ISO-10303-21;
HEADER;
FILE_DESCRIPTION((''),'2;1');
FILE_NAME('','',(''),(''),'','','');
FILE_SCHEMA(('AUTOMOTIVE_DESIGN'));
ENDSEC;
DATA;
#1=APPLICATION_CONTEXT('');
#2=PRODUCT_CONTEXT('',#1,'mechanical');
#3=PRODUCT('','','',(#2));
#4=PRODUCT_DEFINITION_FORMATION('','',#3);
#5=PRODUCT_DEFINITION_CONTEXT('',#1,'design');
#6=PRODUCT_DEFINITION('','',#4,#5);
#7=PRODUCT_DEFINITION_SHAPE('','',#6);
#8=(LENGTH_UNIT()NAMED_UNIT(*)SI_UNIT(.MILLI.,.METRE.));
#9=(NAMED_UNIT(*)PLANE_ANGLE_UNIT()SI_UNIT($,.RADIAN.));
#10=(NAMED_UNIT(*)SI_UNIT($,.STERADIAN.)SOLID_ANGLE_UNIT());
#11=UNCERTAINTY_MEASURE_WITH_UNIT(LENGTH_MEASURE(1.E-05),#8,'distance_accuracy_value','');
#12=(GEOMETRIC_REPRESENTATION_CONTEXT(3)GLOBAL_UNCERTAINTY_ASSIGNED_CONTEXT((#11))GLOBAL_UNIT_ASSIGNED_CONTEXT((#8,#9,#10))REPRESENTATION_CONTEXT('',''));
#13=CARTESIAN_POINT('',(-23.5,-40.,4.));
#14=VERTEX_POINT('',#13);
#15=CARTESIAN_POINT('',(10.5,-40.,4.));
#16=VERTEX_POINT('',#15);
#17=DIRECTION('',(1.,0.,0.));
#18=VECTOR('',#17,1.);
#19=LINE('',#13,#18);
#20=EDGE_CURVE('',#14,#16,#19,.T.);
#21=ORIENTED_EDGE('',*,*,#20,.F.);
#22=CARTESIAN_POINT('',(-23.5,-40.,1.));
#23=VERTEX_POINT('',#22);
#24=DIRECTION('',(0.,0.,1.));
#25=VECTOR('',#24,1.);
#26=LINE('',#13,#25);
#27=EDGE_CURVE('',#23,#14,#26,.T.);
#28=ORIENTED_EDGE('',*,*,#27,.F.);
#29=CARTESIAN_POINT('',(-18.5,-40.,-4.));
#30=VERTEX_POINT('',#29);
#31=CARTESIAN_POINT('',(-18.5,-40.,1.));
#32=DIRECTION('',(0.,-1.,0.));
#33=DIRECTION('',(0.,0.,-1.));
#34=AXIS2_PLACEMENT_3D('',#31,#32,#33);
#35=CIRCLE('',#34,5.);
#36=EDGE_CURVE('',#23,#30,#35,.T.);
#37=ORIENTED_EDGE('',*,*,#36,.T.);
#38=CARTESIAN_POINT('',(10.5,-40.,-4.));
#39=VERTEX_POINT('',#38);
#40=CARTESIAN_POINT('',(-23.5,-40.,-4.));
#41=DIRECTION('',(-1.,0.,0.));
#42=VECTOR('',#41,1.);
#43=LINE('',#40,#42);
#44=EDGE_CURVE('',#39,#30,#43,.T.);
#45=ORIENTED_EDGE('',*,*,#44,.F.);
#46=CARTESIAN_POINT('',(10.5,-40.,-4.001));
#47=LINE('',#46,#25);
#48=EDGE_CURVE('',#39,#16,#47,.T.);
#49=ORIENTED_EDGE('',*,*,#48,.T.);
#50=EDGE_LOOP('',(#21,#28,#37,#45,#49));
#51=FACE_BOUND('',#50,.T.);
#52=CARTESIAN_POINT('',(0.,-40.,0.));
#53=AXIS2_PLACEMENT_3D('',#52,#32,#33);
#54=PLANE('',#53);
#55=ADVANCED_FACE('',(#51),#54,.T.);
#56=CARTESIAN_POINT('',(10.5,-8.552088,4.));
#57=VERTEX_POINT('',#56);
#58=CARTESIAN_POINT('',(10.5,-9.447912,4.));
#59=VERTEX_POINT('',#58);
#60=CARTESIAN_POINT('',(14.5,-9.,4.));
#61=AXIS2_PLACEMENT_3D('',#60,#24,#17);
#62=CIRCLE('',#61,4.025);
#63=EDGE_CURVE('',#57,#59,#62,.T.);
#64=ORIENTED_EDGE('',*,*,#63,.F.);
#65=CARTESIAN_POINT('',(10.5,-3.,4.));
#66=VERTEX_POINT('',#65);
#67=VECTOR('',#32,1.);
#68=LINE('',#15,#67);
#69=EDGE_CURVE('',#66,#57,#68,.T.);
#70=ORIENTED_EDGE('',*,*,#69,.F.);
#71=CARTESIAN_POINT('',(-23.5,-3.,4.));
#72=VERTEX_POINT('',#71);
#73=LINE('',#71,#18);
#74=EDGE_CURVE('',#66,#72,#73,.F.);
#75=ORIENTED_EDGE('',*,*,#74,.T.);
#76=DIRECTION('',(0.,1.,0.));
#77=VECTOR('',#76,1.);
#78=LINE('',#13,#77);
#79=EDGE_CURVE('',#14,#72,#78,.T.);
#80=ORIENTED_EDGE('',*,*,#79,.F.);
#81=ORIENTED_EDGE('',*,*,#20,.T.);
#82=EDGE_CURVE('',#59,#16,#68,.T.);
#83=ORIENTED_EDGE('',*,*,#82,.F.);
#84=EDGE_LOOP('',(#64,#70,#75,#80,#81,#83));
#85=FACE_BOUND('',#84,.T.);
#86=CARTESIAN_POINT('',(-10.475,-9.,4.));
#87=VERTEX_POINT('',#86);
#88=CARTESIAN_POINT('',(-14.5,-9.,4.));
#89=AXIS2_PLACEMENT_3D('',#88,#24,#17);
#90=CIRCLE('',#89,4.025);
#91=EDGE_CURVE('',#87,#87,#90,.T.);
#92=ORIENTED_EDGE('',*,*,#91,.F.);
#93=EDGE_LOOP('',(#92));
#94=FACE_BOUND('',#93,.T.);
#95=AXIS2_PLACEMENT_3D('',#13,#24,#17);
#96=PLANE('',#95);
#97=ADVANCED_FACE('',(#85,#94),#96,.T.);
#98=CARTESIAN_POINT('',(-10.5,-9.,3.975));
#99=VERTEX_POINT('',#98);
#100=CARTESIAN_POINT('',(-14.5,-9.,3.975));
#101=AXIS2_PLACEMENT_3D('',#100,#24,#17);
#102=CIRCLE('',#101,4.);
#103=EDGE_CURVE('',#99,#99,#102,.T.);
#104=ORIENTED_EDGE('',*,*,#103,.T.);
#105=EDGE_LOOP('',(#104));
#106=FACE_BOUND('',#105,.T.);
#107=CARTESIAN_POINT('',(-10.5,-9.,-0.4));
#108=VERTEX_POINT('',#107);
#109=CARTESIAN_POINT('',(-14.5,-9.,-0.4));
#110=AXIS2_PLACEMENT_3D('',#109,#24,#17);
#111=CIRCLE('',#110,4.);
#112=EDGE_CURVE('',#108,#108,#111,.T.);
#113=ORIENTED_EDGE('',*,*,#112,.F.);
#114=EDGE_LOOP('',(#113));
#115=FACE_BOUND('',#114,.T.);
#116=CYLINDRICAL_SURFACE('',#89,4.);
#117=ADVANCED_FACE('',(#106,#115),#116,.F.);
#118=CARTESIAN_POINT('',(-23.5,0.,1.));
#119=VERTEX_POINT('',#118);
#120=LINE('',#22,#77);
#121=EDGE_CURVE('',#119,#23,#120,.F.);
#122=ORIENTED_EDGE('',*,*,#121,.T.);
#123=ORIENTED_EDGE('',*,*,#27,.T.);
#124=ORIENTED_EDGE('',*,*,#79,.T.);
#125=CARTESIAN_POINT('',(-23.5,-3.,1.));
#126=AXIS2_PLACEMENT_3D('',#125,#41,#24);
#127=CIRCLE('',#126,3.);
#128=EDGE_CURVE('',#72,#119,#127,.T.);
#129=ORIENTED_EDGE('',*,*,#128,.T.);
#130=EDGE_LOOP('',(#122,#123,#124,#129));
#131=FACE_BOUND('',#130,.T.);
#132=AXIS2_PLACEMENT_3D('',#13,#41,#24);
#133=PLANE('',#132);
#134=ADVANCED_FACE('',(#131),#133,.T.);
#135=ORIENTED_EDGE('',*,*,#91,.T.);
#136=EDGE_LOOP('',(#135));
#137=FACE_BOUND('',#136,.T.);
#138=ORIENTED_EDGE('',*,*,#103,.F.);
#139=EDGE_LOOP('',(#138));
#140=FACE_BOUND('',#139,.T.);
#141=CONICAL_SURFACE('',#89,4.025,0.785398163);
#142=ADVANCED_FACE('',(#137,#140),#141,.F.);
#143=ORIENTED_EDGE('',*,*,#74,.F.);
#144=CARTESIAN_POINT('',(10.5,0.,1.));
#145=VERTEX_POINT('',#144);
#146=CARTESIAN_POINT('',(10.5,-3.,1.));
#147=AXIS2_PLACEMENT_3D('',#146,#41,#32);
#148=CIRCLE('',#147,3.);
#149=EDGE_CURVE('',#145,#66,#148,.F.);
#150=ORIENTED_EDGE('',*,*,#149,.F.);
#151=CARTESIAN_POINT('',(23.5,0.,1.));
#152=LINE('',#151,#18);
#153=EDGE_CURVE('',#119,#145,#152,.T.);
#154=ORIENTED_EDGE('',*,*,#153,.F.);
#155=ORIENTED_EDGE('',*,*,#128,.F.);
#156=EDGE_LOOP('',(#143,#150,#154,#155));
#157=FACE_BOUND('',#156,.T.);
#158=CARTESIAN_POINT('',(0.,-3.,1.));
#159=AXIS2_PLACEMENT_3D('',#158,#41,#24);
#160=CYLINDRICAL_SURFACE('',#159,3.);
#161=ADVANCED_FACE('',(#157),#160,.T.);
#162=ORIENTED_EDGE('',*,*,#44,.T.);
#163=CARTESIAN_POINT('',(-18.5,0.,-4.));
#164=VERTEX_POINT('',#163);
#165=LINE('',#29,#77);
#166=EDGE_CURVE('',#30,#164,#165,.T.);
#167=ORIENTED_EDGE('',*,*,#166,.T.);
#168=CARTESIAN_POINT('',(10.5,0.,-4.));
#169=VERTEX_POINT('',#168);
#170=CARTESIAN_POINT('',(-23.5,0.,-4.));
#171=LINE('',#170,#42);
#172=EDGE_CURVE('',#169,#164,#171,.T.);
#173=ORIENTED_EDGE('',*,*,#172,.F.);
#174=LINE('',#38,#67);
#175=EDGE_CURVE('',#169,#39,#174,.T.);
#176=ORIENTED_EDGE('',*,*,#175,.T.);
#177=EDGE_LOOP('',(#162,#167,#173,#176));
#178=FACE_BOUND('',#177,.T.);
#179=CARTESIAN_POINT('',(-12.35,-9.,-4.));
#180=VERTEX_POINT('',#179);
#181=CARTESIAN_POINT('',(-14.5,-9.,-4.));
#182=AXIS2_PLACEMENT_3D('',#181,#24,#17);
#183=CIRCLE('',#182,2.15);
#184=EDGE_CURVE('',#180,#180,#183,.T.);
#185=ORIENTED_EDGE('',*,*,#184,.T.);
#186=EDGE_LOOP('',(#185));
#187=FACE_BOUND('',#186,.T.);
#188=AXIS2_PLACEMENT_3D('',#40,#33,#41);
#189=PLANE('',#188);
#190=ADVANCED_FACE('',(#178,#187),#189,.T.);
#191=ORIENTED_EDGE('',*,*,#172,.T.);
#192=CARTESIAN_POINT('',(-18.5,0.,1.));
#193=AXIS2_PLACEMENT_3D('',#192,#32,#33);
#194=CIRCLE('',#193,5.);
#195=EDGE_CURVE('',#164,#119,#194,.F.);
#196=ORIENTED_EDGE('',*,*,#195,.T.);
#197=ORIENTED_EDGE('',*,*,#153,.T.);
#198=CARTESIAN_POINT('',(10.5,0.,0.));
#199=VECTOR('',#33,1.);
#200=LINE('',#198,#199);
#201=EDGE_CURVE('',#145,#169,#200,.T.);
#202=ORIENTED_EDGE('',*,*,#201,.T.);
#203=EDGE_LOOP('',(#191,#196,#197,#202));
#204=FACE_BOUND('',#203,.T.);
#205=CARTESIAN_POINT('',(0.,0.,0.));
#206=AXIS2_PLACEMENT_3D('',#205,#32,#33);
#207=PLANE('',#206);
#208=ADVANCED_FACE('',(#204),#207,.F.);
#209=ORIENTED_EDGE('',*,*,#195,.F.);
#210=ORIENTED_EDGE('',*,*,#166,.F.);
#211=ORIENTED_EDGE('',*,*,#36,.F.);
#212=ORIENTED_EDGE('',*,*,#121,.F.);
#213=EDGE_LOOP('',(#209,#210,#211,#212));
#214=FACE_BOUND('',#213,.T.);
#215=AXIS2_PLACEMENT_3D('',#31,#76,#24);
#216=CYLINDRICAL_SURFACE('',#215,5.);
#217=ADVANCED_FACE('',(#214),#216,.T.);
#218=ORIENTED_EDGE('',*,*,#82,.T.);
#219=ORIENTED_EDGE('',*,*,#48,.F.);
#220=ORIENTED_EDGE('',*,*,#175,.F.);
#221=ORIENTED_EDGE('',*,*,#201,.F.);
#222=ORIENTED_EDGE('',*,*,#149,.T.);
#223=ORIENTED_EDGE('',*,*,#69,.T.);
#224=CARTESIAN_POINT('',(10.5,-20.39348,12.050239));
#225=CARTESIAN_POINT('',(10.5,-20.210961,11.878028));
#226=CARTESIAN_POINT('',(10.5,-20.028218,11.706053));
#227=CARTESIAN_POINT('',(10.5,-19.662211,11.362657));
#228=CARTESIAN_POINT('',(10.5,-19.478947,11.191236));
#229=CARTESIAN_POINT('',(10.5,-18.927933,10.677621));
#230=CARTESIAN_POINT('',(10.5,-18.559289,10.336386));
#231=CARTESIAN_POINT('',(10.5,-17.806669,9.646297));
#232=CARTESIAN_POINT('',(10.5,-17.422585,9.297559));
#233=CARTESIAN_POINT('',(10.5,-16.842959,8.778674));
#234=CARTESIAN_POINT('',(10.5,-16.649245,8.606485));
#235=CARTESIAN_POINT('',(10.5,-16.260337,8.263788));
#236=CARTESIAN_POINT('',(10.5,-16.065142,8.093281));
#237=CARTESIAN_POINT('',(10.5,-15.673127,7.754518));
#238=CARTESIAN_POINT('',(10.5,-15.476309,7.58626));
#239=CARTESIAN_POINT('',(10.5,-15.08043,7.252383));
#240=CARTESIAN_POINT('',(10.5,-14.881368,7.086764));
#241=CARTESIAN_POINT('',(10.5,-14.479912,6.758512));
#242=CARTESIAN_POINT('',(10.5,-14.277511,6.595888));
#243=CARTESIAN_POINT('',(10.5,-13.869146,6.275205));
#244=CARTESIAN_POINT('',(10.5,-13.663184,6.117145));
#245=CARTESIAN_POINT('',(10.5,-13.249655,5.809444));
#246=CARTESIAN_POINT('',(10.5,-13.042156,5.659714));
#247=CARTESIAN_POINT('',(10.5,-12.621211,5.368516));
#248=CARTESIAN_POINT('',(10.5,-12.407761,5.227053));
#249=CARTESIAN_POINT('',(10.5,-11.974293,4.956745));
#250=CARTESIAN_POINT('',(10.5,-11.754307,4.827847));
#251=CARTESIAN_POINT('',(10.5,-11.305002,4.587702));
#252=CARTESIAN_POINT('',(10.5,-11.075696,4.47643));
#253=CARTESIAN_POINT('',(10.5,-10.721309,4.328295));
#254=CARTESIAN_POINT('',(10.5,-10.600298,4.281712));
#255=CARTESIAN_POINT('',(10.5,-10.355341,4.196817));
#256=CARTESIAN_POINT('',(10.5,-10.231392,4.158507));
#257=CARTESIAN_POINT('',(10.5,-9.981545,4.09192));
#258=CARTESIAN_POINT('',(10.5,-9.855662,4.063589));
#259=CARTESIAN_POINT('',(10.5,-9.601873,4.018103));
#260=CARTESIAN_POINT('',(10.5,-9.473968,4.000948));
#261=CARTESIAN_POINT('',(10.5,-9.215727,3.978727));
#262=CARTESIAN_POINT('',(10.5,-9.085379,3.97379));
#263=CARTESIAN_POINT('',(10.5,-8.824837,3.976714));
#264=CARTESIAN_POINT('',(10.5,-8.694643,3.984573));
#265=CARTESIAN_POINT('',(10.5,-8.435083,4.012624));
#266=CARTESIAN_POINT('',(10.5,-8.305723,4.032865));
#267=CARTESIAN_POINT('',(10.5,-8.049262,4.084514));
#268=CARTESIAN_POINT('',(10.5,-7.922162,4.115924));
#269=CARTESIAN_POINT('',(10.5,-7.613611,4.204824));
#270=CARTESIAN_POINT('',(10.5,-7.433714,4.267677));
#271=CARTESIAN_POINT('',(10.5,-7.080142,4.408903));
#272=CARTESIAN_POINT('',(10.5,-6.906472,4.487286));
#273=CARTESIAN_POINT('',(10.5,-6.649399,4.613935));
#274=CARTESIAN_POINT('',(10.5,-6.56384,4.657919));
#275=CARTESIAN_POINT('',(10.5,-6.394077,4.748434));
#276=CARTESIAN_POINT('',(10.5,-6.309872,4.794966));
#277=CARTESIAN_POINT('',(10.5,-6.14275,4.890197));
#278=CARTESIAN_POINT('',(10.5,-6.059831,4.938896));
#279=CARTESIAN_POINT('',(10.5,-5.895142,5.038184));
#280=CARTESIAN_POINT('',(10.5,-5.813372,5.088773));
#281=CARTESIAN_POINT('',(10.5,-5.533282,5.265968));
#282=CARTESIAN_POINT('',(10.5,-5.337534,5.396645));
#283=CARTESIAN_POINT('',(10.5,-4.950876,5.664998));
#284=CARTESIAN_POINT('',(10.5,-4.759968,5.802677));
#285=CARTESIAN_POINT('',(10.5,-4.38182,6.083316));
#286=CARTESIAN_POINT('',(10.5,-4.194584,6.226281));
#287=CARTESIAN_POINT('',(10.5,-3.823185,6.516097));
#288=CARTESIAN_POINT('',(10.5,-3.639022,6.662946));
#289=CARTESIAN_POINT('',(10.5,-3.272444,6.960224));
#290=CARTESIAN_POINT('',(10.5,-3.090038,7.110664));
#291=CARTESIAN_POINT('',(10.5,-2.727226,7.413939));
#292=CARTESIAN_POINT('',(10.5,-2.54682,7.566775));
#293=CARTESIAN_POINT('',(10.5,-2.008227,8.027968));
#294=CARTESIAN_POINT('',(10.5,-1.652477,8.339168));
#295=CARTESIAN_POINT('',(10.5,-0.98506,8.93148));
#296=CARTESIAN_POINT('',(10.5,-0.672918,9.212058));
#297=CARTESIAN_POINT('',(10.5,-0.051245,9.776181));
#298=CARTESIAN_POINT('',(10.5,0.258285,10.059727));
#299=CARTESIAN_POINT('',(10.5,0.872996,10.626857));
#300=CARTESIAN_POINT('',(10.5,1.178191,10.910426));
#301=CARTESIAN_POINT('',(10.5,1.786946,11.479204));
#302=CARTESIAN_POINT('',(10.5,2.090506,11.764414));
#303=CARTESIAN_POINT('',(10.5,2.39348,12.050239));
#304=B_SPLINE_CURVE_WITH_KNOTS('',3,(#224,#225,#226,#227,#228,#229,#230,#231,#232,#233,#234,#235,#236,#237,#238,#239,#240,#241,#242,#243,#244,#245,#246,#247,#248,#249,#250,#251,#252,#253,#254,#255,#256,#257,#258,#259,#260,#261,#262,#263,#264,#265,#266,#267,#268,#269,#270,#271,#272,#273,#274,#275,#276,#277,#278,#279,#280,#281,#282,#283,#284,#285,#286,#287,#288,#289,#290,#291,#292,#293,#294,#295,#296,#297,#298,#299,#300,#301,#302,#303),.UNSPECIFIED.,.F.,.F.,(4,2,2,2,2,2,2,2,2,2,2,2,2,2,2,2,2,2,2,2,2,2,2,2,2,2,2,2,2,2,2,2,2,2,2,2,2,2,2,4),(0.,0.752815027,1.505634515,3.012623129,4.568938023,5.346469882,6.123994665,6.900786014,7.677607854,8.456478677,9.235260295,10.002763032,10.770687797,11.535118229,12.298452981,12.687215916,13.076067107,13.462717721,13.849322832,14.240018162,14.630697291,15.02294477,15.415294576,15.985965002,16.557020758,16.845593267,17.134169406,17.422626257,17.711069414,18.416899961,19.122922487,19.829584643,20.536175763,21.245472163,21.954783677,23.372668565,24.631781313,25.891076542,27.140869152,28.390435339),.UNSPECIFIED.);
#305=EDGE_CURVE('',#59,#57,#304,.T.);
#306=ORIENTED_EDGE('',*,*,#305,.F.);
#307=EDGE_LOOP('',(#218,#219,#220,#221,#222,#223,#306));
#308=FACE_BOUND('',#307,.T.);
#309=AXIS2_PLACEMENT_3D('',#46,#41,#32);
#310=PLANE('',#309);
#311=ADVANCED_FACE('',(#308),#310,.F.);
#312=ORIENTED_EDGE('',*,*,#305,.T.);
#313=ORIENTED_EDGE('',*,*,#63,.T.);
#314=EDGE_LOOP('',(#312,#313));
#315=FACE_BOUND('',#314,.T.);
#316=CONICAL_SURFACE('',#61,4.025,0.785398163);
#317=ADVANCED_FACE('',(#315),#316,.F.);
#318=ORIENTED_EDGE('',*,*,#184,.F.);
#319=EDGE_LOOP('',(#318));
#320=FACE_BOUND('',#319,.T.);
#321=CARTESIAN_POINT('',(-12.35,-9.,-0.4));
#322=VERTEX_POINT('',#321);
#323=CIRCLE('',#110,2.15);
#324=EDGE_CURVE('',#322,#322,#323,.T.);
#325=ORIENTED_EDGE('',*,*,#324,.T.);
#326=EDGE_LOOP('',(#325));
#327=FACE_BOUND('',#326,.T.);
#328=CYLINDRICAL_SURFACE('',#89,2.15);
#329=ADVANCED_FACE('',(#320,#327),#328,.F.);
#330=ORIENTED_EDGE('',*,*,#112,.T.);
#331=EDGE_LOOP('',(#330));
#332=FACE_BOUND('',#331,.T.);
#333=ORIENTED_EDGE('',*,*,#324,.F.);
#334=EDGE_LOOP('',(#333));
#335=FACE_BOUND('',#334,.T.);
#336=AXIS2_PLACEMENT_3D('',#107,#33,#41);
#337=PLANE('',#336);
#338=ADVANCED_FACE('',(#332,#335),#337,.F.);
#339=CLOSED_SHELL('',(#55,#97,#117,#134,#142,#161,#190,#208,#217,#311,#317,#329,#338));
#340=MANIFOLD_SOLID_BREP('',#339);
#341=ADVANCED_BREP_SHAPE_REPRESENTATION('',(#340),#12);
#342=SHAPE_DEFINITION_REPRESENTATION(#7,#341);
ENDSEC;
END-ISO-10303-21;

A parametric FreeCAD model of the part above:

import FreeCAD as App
import Part
import Sketcher

V = App.Vector
Q = App.Units.Quantity


def edges_at(feature, points):
    """Names of the edges that pass closest to the given points."""
    edges = feature.Shape.Edges
    near = lambda p: min(range(len(edges)), key=lambda i: edges[i].distToShape(Part.Vertex(*p))[0])
    return sorted({f"Edge{near(p) + 1}" for p in points})

doc = App.newDocument("Part")
body = doc.addObject("PartDesign::Body", "Body")

# Sketch on XZ plane
sketch1 = body.newObject("Sketcher::SketchObject", "Sketch")
sketch1.AttachmentSupport = (doc.getObject("XZ_Plane"), [""])
sketch1.MapMode = "FlatFace"
sketch1.addGeometry([
    Part.LineSegment(V(-23.5, -4, 0), V(-23.5, 4, 0)),
    Part.LineSegment(V(-23.5, 4, 0), V(23.5, 4, 0)),
    Part.LineSegment(V(23.5, 4, 0), V(23.5, -4, 0)),
    Part.LineSegment(V(23.5, -4, 0), V(-23.5, -4, 0)),
], False)
sketch1.addConstraint([
    Sketcher.Constraint("Coincident", 0, 2, 1, 1),
    Sketcher.Constraint("Coincident", 1, 2, 2, 1),
    Sketcher.Constraint("Coincident", 2, 2, 3, 1),
    Sketcher.Constraint("Coincident", 3, 2, 0, 1),
    Sketcher.Constraint("Vertical", 0),
    Sketcher.Constraint("Horizontal", 1),
    Sketcher.Constraint("Vertical", 2),
    Sketcher.Constraint("Horizontal", 3),
    Sketcher.Constraint("Symmetric", 0, 2, 2, 2, -1, 1),
    Sketcher.Constraint("DistanceX", 1, 1, 1, 2, Q("47 mm")),
    Sketcher.Constraint("DistanceY", 0, 1, 0, 2, Q("8 mm")),
])
pad1 = body.newObject("PartDesign::Pad", "Pad")
pad1.Profile = sketch1
pad1.Length = 40
doc.recompute()

fillet = body.newObject("PartDesign::Fillet", "Fillet")
fillet.Base = (pad1, edges_at(pad1, [(0, 0, 4)]))
fillet.Radius = 3
doc.recompute()

fillet2 = body.newObject("PartDesign::Fillet", "Fillet001")
fillet2.Base = (fillet, edges_at(fillet, [(-23.5, -20, -4), (23.5, -20, -4)]))
fillet2.Radius = 5

# Sketch on YZ plane
sketch2 = body.newObject("Sketcher::SketchObject", "Sketch001")
sketch2.AttachmentSupport = (doc.getObject("YZ_Plane"), [""])
sketch2.MapMode = "FlatFace"
sketch2.AttachmentOffset = App.Placement(V(0, 0, -14.5), App.Rotation())
sketch2.addGeometry([
    Part.LineSegment(V(-9, -4, 0), V(-9, 4, 0)),  # 0
    Part.LineSegment(V(-9, 4, 0), V(-13.025, 4, 0)),  # 1
    Part.LineSegment(V(-13.025, 4, 0), V(-13, 3.975, 0)),  # 2
    Part.LineSegment(V(-13, 3.975, 0), V(-13, -0.4, 0)),  # 3
    Part.LineSegment(V(-13, -0.4, 0), V(-11.15, -0.4, 0)),  # 4
    Part.LineSegment(V(-11.15, -0.4, 0), V(-11.15, -4, 0)),  # 5
    Part.LineSegment(V(-11.15, -4, 0), V(-9, -4, 0)),  # 6
], False)
sketch2.addGeometry(Part.LineSegment(V(-9, 4, 0), V(-9, -4, 0)), True)  # axis
sketch2.addConstraint([
    Sketcher.Constraint("Coincident", 0, 2, 1, 1),
    Sketcher.Constraint("Coincident", 1, 2, 2, 1),
    Sketcher.Constraint("Coincident", 2, 2, 3, 1),
    Sketcher.Constraint("Coincident", 3, 2, 4, 1),
    Sketcher.Constraint("Coincident", 4, 2, 5, 1),
    Sketcher.Constraint("Coincident", 5, 2, 6, 1),
    Sketcher.Constraint("Coincident", 6, 2, 0, 1),
    Sketcher.Constraint("Vertical", 0),
    Sketcher.Constraint("Horizontal", 1),
    Sketcher.Constraint("Vertical", 3),
    Sketcher.Constraint("Horizontal", 4),
    Sketcher.Constraint("Vertical", 5),
    Sketcher.Constraint("Horizontal", 6),
    Sketcher.Constraint("Vertical", 7),
    Sketcher.Constraint("Coincident", 7, 1, 0, 2),
    Sketcher.Constraint("Horizontal", 5, 2, 7, 2),
    Sketcher.Constraint("DistanceY", 0, 1, 0, 2, Q("8 mm")),
    Sketcher.Constraint("Angle", 2, Q("-45 deg")),
    Sketcher.Constraint("DistanceY", 5, 2, 5, 1, Q("3.6 mm")),
    Sketcher.Constraint("DistanceX", 0, 2, -1, 1, Q("9 mm")),
    Sketcher.Constraint("DistanceY", -1, 1, 0, 2, Q("4 mm")),
    Sketcher.Constraint("DistanceX", 2, 2, -1, 1, Q("13 mm")),
    Sketcher.Constraint("DistanceX", 4, 1, 4, 2, Q("1.85 mm")),
    Sketcher.Constraint("DistanceX", 1, 2, 1, 1, Q("4.025 mm")),
])
groove = body.newObject("PartDesign::Groove", "Groove")
groove.Profile = sketch2
groove.ReferenceAxis = (sketch2, ["Axis0"])
groove.Angle = 360
doc.recompute()

linearpattern = body.newObject("PartDesign::LinearPattern", "LinearPattern")
linearpattern.Originals = [groove]
linearpattern.Direction = (doc.getObject("X_Axis"), [""])
linearpattern.Mode = "offset"
linearpattern.Offset = 29
linearpattern.Occurrences = 2
body.Tip = linearpattern

# Sketch on XY plane
sketch3 = body.newObject("Sketcher::SketchObject", "Sketch002")
sketch3.AttachmentSupport = (doc.getObject("XY_Plane"), [""])
sketch3.MapMode = "FlatFace"
sketch3.AttachmentOffset = App.Placement(V(0, 0, 4), App.Rotation())
sketch3.addGeometry([
    Part.LineSegment(V(10.5, 4.997787, 0), V(10.5, -40, 0)),
    Part.LineSegment(V(10.5, -40, 0), V(23.5, -40, 0)),
    Part.LineSegment(V(23.5, -40, 0), V(23.5, 4.997787, 0)),
    Part.LineSegment(V(23.5, 4.997787, 0), V(10.5, 4.997787, 0)),
], False)
sketch3.addConstraint([
    Sketcher.Constraint("Coincident", 0, 2, 1, 1),
    Sketcher.Constraint("Coincident", 1, 2, 2, 1),
    Sketcher.Constraint("Coincident", 2, 2, 3, 1),
    Sketcher.Constraint("Coincident", 3, 2, 0, 1),
    Sketcher.Constraint("Vertical", 0),
    Sketcher.Constraint("Horizontal", 1),
    Sketcher.Constraint("Vertical", 2),
    Sketcher.Constraint("Horizontal", 3),
    Sketcher.Constraint("DistanceX", 1, 1, 1, 2, Q("13 mm")),
    Sketcher.Constraint("DistanceY", 0, 2, -1, 1, Q("40 mm")),
    Sketcher.Constraint("DistanceX", -1, 1, 0, 2, Q("10.5 mm")),
    Sketcher.Constraint("DistanceY", 0, 2, 0, 1, Q("44.997787 mm")),
])
pocket1 = body.newObject("PartDesign::Pocket", "Pocket")
pocket1.Profile = sketch3
pocket1.Type = "UpToFirst"

doc.recompute()
